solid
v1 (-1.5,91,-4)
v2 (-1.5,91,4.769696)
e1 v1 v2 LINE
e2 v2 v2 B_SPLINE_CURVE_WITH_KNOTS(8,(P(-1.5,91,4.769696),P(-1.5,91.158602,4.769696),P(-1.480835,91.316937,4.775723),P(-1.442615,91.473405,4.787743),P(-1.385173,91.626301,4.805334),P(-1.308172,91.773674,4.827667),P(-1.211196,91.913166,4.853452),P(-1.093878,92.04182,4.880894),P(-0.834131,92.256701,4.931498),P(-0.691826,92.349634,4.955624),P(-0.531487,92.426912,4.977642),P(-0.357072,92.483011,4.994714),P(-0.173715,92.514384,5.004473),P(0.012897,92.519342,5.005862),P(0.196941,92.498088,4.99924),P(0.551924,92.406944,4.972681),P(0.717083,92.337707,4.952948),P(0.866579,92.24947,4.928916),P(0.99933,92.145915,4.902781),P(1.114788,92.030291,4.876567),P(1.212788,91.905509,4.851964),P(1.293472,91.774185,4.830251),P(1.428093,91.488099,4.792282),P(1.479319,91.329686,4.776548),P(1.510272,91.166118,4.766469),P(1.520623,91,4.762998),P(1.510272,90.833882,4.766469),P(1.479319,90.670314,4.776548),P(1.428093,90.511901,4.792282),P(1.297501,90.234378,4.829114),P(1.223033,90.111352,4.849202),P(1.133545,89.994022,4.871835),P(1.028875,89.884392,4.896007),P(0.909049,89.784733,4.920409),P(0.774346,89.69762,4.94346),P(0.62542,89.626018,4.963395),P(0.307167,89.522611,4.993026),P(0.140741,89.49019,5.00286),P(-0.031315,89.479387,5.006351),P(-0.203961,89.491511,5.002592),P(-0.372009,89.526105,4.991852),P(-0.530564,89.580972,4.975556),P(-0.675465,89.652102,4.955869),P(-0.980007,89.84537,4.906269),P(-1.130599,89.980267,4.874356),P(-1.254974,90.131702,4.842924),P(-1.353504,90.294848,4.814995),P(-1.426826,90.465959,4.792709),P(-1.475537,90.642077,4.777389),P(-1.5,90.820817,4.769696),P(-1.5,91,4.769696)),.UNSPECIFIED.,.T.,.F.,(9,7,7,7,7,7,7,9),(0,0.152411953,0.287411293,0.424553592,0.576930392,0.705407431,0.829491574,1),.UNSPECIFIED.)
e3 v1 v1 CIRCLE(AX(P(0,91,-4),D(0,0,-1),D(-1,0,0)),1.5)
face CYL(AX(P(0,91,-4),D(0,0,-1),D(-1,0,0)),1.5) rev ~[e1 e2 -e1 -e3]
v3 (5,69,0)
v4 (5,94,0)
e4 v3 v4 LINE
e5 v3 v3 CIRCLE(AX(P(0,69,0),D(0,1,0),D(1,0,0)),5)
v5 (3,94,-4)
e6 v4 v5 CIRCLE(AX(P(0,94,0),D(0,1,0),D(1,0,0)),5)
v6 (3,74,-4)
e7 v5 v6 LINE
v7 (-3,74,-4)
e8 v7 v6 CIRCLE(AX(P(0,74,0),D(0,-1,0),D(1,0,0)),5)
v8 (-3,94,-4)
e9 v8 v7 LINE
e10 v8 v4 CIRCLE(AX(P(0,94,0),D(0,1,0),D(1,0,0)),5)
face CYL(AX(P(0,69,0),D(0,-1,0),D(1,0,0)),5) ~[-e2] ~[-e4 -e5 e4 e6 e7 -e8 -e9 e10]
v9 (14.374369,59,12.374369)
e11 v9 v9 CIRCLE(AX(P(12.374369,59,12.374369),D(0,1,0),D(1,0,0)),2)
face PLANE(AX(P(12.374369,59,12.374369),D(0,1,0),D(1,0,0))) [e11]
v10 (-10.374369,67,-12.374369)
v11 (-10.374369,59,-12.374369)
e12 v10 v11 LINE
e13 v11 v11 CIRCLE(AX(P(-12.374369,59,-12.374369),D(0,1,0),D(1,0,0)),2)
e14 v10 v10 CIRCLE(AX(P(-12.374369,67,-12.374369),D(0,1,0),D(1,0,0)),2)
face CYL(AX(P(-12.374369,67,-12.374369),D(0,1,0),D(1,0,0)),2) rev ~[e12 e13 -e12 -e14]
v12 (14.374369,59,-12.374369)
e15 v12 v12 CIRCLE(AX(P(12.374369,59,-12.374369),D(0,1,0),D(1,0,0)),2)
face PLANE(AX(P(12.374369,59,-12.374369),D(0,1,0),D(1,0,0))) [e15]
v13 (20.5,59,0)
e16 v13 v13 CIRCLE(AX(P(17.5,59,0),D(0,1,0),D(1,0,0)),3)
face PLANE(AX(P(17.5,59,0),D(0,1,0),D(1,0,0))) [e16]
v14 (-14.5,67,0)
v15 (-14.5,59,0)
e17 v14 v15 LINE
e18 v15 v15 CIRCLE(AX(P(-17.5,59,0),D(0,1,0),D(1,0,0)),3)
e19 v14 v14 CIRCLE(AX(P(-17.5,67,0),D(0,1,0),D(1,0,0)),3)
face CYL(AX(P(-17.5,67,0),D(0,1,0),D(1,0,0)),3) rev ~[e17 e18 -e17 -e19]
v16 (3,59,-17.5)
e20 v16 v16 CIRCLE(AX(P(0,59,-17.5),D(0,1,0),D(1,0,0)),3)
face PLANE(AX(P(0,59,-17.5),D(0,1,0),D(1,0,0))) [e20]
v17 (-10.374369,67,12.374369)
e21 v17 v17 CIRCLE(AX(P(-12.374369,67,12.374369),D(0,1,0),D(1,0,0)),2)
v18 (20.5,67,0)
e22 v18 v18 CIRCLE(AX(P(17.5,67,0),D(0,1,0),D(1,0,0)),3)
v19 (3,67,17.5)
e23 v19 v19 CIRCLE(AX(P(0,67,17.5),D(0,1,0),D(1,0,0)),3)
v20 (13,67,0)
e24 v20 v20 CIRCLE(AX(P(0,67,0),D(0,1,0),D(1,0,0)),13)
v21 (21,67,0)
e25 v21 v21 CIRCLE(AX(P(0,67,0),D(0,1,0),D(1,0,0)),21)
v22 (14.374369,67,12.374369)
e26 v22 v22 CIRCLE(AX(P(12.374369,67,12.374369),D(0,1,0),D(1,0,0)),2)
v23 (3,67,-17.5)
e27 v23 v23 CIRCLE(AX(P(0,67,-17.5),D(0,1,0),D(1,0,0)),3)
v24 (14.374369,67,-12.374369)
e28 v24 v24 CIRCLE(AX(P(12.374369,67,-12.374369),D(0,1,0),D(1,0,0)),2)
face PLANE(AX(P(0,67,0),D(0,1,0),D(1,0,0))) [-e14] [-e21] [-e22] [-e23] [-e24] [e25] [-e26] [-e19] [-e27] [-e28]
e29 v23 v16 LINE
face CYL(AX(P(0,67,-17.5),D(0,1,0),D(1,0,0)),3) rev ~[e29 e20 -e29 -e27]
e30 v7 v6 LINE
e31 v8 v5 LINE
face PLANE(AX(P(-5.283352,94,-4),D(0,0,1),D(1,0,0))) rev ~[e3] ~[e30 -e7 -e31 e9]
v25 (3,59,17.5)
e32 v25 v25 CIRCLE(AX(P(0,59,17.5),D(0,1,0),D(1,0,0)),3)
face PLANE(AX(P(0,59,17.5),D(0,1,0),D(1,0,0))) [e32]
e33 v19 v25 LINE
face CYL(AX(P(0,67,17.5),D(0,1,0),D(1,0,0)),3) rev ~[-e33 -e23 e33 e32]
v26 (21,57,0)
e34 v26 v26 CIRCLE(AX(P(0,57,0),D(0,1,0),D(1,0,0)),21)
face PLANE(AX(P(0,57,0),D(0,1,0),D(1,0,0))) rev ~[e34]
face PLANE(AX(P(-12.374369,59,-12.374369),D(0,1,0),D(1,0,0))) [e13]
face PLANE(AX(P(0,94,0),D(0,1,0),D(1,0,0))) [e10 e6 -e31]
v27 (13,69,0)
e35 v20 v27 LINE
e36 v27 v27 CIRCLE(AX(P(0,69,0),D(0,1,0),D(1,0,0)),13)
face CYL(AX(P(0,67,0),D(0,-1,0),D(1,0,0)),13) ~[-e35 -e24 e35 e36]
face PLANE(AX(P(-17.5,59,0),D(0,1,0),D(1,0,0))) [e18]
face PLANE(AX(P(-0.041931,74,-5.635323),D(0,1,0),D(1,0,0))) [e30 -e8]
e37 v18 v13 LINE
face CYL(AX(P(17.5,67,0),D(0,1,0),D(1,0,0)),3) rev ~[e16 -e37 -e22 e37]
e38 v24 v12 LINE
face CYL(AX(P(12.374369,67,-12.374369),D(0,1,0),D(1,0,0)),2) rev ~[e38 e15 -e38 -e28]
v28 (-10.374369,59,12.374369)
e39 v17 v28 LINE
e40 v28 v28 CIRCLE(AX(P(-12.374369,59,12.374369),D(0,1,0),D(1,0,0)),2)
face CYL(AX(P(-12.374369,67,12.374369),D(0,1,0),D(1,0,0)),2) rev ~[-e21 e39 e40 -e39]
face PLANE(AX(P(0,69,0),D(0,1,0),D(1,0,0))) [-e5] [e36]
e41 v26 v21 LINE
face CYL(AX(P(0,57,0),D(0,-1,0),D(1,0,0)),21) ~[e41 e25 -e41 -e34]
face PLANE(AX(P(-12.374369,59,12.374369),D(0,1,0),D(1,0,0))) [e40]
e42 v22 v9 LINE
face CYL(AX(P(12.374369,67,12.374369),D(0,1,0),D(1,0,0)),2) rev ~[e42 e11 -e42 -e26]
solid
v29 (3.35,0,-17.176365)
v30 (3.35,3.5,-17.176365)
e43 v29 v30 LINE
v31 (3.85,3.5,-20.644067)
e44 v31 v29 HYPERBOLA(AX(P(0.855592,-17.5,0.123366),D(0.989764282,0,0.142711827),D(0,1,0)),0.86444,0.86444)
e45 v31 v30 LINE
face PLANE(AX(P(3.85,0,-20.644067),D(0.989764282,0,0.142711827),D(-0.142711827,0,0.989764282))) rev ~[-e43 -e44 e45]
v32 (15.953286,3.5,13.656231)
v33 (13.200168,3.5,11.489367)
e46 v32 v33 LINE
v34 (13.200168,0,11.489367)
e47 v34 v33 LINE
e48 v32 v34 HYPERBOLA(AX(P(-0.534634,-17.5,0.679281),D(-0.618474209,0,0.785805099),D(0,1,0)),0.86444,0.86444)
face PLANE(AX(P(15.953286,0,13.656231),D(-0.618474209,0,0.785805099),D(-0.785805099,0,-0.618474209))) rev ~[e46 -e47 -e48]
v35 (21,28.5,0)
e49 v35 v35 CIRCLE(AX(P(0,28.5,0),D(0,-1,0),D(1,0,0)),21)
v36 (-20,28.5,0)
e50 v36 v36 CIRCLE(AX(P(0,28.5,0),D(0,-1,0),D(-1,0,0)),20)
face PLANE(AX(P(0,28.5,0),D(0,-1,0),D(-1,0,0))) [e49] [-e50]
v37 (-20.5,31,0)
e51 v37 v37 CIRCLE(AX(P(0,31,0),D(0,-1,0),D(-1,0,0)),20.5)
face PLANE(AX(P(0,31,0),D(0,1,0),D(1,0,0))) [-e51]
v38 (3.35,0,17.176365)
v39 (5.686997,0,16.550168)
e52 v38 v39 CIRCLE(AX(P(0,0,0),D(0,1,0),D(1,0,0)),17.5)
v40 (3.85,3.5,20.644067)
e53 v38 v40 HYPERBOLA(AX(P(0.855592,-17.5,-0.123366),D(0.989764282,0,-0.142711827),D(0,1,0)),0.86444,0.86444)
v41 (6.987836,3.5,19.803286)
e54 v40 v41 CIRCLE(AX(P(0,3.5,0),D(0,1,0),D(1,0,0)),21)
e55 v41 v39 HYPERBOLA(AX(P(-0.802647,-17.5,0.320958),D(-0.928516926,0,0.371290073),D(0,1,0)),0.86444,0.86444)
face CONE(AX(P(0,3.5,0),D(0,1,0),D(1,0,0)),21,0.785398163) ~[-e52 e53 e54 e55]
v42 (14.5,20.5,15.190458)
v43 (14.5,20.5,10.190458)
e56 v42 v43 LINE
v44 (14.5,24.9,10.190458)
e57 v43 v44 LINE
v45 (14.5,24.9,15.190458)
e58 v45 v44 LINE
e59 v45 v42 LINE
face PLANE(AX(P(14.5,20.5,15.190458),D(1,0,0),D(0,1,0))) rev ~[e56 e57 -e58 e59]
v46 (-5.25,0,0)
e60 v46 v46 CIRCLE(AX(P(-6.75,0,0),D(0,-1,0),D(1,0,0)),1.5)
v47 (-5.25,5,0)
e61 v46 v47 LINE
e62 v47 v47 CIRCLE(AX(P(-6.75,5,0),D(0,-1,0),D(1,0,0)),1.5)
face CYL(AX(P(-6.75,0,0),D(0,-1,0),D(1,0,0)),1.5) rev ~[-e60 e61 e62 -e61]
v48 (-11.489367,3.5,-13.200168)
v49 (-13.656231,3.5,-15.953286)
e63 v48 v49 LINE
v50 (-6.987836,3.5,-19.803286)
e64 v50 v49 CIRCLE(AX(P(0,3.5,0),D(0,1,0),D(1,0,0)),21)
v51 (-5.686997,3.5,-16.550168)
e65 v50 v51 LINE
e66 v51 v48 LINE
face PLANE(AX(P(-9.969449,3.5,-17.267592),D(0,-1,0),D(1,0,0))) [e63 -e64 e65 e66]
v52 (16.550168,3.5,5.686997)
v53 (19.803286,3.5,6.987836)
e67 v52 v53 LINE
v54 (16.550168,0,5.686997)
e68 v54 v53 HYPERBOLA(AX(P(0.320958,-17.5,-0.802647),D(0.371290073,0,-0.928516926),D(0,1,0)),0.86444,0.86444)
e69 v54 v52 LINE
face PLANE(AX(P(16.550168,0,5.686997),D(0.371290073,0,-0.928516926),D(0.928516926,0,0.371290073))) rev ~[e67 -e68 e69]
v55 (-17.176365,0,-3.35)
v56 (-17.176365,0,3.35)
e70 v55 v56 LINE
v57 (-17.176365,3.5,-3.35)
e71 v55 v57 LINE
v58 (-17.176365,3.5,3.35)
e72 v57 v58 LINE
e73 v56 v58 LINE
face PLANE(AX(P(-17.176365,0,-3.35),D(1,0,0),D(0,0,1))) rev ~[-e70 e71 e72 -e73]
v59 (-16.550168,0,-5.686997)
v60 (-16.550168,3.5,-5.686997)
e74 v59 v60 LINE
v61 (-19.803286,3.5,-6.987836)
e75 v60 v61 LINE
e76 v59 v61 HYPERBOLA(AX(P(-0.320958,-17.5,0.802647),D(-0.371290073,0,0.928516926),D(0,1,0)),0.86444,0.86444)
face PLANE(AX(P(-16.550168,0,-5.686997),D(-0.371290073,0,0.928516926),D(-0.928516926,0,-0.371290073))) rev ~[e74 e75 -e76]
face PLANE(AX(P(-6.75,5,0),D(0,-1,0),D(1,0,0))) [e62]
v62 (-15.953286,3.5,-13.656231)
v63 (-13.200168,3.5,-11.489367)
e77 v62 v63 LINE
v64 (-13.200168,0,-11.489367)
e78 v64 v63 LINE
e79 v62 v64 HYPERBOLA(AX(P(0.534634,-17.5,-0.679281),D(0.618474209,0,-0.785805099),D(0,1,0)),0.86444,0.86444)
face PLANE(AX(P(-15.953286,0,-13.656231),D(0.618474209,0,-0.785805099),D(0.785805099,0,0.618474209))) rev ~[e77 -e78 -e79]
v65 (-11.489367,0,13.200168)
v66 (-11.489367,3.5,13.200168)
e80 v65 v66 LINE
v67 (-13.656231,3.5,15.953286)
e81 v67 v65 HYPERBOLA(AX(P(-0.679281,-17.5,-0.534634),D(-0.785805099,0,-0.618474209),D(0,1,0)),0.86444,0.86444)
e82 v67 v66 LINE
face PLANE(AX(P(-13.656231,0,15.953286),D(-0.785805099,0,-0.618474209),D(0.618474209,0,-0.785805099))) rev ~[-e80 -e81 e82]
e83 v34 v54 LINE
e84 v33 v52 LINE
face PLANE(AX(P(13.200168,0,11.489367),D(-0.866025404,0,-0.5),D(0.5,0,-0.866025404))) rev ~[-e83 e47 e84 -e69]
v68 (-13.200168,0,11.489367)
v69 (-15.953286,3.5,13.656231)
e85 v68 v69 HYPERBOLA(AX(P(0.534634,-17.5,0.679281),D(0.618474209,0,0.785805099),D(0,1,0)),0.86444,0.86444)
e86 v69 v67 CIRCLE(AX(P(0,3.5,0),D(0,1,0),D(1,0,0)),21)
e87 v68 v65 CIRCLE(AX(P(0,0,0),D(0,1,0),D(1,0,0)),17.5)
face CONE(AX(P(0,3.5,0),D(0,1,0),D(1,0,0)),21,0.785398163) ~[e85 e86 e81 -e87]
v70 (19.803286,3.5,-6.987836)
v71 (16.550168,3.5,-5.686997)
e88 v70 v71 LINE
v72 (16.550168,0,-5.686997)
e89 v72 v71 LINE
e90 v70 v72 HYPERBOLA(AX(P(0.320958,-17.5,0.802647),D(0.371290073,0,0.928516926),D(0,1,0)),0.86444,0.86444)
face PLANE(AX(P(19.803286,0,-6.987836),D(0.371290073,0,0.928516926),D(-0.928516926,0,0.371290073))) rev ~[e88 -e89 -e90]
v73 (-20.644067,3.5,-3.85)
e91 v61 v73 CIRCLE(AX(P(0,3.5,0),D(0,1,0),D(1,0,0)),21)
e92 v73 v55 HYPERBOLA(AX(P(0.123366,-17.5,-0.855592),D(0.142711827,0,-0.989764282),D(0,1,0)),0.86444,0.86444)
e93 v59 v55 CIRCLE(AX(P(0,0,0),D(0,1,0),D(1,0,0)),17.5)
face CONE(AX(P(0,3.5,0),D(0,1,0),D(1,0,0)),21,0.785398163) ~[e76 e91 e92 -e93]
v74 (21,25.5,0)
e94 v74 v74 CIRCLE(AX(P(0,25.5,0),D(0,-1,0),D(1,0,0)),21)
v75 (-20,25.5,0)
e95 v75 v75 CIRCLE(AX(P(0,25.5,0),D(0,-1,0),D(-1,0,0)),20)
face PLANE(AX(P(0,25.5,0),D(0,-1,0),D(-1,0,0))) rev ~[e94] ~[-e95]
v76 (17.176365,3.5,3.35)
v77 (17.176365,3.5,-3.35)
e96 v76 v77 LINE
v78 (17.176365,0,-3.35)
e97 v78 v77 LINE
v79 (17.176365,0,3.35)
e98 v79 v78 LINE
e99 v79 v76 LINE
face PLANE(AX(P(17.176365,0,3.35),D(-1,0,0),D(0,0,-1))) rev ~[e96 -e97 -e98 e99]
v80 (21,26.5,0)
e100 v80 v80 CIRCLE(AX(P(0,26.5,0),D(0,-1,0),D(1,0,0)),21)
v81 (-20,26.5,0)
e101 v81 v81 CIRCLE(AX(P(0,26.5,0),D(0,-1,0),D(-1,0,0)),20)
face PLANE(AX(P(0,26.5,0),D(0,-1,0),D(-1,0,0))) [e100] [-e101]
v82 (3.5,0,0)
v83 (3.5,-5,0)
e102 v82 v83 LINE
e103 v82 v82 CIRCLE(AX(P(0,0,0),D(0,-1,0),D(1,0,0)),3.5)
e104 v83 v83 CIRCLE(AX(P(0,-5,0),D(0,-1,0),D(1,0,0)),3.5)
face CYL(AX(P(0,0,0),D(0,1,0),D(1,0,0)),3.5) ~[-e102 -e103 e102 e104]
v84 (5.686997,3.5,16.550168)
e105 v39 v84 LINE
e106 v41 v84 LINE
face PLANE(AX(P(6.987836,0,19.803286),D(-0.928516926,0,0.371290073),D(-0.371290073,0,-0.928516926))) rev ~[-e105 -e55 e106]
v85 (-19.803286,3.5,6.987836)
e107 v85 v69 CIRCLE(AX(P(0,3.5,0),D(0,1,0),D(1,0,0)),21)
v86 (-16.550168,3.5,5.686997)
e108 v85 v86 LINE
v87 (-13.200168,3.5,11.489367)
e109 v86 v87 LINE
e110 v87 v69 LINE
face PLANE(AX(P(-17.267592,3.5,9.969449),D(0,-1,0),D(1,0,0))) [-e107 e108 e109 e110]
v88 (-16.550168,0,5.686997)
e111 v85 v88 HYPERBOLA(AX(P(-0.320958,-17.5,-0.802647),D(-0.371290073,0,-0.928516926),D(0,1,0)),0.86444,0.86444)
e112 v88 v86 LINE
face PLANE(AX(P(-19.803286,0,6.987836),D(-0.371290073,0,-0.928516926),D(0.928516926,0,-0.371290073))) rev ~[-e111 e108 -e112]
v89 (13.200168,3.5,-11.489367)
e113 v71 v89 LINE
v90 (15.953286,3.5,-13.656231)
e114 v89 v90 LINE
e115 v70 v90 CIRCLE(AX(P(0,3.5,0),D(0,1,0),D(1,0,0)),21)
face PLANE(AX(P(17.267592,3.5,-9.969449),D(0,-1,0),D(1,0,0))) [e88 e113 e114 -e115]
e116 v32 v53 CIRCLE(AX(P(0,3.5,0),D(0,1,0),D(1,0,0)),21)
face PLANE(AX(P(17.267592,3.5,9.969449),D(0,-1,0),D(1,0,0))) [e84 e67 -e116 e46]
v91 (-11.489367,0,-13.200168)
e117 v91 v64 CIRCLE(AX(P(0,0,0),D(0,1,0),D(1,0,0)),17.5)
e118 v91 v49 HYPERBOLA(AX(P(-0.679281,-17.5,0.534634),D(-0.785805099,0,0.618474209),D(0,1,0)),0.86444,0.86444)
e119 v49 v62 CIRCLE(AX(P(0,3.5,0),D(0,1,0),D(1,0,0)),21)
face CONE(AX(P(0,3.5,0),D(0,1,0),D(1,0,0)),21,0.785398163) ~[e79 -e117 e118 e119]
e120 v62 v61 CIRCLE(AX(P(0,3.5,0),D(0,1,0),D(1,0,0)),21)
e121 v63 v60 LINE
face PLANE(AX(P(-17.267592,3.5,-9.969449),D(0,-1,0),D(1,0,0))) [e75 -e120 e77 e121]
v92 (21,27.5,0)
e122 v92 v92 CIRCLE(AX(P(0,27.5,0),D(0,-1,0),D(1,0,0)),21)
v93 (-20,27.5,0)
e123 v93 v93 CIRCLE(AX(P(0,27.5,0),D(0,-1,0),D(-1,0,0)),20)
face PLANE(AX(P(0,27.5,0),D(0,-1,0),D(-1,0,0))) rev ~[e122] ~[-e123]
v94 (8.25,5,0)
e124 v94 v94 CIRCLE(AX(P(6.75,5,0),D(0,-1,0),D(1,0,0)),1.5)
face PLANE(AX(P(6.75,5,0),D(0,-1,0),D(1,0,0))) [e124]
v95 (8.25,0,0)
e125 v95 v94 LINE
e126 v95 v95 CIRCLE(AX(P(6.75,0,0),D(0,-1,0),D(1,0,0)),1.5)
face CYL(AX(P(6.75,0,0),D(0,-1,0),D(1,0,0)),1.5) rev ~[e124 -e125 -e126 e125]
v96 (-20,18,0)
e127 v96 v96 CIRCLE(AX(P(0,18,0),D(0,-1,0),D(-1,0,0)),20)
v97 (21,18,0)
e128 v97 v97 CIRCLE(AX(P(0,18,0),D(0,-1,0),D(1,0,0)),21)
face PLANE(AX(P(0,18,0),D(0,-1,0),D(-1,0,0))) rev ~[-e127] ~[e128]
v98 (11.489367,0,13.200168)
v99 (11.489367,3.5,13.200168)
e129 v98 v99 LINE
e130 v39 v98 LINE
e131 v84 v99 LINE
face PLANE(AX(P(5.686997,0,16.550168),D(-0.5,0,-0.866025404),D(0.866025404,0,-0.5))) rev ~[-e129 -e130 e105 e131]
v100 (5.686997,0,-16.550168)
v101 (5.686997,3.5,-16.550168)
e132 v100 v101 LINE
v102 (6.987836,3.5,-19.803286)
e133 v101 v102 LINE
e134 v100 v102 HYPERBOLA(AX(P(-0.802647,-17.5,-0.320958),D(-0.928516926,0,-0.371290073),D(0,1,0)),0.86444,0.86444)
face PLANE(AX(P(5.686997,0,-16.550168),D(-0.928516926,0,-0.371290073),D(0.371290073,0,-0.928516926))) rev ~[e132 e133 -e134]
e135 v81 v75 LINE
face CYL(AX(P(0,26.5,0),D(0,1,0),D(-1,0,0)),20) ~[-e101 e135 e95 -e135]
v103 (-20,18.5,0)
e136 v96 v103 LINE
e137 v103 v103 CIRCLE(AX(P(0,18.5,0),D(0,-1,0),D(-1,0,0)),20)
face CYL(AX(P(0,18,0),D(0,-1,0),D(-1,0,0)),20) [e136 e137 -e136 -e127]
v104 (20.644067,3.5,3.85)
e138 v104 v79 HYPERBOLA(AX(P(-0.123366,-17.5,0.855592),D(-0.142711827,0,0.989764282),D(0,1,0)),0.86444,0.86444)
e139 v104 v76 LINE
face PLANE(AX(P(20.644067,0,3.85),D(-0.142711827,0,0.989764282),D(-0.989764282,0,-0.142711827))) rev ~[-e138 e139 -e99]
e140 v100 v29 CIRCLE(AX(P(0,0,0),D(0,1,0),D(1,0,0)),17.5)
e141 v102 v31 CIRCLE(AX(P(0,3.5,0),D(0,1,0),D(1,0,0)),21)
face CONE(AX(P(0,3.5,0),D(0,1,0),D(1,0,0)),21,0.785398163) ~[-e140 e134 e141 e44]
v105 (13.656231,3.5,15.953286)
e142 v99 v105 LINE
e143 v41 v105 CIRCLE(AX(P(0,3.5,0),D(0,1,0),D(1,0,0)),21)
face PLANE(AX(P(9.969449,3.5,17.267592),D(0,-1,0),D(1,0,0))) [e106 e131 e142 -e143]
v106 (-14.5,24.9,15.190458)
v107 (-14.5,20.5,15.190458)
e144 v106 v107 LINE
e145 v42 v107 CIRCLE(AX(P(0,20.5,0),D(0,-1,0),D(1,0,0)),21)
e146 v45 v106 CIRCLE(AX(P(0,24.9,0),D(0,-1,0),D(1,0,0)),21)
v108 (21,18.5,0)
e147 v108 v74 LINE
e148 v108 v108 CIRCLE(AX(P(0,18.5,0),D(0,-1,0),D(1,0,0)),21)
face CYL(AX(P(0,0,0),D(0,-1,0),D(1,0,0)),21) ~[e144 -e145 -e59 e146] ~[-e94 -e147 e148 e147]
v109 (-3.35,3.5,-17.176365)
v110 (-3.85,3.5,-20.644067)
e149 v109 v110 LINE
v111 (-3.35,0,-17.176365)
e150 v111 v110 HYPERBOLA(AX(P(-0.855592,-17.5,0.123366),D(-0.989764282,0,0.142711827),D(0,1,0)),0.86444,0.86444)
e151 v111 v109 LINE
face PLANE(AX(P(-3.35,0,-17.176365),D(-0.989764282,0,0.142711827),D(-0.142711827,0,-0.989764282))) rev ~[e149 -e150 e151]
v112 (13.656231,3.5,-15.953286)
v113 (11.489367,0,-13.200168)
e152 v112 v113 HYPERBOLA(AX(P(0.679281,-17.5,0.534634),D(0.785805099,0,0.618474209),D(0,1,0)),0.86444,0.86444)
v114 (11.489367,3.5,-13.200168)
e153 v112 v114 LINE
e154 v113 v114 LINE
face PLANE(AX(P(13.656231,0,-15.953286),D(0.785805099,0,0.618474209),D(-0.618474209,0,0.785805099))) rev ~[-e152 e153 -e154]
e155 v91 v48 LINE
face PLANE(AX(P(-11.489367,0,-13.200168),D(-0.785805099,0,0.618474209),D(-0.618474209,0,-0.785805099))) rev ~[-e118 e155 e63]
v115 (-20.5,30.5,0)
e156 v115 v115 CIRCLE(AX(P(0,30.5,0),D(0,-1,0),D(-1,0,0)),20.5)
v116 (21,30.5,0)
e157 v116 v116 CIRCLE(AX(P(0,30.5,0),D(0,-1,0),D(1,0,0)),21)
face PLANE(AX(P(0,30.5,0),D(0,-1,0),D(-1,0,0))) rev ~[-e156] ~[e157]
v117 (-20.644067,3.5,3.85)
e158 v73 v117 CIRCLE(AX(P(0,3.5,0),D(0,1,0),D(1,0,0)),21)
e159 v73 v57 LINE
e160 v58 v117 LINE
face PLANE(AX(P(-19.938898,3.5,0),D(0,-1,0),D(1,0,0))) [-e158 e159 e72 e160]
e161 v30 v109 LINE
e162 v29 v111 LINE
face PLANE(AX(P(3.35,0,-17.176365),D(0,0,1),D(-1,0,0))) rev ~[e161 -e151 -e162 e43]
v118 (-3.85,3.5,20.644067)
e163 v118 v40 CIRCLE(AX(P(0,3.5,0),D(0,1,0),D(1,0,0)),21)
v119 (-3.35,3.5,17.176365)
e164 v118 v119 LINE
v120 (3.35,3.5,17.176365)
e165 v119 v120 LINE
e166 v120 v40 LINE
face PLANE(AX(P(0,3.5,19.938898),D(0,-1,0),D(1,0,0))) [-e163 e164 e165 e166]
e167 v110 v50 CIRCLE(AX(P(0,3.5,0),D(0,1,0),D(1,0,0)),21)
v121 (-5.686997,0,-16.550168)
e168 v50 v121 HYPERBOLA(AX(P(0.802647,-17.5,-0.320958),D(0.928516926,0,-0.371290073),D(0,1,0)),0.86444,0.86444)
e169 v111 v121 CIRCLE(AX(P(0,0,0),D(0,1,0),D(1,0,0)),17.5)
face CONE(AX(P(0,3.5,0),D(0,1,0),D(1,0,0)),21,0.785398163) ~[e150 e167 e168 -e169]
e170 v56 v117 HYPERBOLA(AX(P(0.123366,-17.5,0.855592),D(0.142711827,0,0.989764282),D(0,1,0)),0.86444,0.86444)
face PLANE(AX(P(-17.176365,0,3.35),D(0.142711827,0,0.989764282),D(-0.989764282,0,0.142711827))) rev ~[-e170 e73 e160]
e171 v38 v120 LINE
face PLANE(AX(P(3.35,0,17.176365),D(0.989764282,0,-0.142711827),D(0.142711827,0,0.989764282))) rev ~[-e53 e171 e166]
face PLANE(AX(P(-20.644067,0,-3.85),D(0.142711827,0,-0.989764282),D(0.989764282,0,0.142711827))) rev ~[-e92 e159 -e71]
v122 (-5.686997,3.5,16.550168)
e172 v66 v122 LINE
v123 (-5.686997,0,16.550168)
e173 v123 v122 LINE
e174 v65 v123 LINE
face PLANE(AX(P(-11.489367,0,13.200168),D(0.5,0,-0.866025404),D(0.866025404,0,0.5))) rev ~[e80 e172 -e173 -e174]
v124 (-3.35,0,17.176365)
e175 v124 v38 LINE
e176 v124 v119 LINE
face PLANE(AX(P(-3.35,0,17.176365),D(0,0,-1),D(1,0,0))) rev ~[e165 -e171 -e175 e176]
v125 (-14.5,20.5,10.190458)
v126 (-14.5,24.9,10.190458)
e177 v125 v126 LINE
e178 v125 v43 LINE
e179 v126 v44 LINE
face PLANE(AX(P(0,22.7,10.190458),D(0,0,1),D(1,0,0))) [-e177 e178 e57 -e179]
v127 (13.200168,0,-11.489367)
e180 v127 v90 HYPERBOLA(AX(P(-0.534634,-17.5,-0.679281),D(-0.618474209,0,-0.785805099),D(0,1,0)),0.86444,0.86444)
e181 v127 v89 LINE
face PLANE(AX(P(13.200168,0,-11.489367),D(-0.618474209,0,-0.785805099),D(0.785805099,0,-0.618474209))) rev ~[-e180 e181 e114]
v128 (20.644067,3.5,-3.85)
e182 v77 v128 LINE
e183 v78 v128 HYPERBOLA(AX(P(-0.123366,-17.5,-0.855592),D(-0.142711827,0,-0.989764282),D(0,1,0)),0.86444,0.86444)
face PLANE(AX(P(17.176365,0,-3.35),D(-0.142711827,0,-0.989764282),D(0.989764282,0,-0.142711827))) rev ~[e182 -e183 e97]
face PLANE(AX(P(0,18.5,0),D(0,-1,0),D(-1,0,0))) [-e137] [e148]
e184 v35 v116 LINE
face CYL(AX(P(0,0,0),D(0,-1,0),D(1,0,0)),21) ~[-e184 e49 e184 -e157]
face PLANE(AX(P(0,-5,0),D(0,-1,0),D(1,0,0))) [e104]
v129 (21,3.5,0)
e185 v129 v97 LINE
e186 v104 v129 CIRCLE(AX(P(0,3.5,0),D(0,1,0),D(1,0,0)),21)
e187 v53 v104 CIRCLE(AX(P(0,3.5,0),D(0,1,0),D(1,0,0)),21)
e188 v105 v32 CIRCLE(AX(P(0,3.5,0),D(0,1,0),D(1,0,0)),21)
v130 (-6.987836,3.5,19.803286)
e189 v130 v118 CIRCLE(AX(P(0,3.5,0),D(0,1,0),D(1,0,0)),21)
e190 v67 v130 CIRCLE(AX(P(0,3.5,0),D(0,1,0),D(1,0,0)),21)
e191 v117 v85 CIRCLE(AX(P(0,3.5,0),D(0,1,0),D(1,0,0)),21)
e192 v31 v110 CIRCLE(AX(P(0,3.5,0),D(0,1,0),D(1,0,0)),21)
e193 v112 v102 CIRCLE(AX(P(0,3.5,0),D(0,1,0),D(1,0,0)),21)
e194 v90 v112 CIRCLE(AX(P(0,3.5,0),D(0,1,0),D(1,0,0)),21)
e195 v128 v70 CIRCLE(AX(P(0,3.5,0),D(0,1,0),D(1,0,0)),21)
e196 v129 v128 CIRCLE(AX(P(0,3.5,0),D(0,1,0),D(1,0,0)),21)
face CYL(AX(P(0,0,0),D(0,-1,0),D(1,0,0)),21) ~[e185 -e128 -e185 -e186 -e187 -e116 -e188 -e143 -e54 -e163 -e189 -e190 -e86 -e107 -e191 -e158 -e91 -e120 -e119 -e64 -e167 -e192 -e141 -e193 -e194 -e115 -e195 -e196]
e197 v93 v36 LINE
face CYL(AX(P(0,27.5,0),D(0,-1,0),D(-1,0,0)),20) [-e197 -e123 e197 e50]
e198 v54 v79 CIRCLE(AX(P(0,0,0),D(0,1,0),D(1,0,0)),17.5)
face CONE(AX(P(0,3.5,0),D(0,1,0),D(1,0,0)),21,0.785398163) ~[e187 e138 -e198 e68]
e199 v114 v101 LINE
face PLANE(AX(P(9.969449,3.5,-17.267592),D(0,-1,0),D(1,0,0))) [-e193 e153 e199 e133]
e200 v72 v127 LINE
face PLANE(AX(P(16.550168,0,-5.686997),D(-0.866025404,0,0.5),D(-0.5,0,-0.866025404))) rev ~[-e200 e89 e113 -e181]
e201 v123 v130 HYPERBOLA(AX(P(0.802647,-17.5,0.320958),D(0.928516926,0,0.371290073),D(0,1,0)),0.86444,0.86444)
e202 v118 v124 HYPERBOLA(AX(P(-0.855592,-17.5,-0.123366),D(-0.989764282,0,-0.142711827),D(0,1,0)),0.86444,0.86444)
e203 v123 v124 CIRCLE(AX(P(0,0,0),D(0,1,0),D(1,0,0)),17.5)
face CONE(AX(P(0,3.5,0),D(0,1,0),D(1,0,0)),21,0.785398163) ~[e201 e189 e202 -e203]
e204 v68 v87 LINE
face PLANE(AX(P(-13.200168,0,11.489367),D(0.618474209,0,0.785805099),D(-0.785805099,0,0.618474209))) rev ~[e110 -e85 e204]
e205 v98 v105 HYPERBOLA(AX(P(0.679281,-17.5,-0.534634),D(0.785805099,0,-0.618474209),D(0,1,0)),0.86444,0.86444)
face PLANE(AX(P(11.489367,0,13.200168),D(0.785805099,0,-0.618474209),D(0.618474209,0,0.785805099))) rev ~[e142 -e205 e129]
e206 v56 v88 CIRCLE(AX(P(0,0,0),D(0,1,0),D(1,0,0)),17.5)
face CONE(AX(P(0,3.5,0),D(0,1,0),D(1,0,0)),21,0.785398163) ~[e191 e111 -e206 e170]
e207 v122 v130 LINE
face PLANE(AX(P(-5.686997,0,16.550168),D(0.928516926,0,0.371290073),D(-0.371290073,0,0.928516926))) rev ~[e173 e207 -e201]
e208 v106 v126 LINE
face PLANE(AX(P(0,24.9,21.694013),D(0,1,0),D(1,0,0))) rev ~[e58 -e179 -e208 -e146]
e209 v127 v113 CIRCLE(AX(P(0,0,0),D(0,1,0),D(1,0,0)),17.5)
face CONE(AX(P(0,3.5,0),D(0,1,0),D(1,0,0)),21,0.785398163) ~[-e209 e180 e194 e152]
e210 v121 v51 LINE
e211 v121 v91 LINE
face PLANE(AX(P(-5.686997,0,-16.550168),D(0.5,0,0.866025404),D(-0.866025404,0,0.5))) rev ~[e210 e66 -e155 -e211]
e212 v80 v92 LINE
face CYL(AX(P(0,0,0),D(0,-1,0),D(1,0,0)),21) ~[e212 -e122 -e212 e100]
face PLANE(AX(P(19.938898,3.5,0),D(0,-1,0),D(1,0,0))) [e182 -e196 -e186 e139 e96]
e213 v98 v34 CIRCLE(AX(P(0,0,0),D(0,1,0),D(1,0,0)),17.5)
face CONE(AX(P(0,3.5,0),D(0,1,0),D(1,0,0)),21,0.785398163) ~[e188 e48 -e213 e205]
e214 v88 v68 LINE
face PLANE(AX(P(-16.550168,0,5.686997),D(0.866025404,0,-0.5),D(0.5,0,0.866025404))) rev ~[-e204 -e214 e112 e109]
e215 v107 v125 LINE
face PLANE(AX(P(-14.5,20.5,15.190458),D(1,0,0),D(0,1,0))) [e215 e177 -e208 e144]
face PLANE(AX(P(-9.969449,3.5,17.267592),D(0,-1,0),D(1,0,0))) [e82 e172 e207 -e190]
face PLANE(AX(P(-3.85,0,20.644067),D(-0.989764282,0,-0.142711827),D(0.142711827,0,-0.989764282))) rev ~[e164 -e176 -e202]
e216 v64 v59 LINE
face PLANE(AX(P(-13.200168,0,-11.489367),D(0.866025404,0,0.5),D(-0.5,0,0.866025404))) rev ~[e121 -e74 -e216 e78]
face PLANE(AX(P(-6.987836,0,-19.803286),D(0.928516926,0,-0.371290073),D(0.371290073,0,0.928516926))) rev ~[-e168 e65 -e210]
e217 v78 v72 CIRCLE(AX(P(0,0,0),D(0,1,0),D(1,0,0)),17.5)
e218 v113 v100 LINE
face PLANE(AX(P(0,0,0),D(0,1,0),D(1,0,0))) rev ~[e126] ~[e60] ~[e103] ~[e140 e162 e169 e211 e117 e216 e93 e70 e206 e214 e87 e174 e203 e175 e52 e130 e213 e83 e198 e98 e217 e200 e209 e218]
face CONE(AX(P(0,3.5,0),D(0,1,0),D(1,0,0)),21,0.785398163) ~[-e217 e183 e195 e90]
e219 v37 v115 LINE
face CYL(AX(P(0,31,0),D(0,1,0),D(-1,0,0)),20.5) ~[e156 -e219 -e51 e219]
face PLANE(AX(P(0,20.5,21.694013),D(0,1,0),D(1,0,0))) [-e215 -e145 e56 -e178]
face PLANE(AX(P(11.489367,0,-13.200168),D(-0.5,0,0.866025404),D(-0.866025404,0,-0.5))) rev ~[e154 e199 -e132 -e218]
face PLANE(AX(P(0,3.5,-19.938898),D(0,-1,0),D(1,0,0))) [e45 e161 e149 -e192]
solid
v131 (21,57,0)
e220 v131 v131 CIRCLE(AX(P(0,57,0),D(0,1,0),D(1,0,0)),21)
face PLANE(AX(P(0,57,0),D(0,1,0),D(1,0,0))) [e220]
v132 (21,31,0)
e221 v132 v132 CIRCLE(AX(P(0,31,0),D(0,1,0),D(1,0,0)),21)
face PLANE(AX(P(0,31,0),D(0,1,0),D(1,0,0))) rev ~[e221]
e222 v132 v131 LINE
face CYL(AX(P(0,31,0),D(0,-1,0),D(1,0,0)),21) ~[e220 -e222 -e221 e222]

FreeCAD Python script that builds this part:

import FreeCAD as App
import Part
import Sketcher
Q = App.Units.Quantity


def edges_at(feature, points):
    """Names of the edges that pass closest to the given points."""
    edges = feature.Shape.Edges
    near = lambda p: min(range(len(edges)), key=lambda i: edges[i].distToShape(Part.Vertex(*p))[0])
    return sorted({f"Edge{near(p) + 1}" for p in points})


def add_polygon(sketch, points):
    """Adds a closed chain of lines whose ends are joined by coincident constraints."""
    first, n = sketch.GeometryCount, len(points)
    for a, b in zip(points, points[1:] + points[:1]):
        sketch.addGeometry(Part.LineSegment(App.Vector(*a, 0), App.Vector(*b, 0)), False)
    for i in range(n):
        sketch.addConstraint(Sketcher.Constraint("Coincident", first + i, 2, first + (i + 1) % n, 1))

doc = App.newDocument("Part")
params = doc.addObject("Spreadsheet::Sheet", "Params")
for row, (alias, value) in enumerate([
    ("sketch1_diameter", "42 mm"),
    ("pad1_length", "31 mm"),
    ("chamfer_size", "3.5 mm"),
    ("sketch2_width", "6.7 mm"),
    ("sketch2_width2", "7.7 mm"),
    ("sketch2_length", "6.7 mm"),
    ("sketch2_length2", "7.7 mm"),
    ("pocket1_length", "3.5 mm"),
    ("sketch3_diameter", "42 mm"),
    ("sketch3_diameter2", "41 mm"),
    ("pocket2_length", "0.5 mm"),
    ("sketch4_diameter", "42 mm"),
    ("sketch4_diameter2", "40 mm"),
    ("pocket3_length", "1 mm"),
    ("sketch5_diameter", "42 mm"),
    ("sketch5_diameter2", "40 mm"),
    ("pocket4_length", "1 mm"),
    ("sketch6_diameter", "42 mm"),
    ("sketch6_diameter2", "40 mm"),
    ("pocket5_length", "0.5 mm"),
    ("sketch7_width", "29 mm"),
    ("pocket6_length", "4.4 mm"),
    ("sketch8_width", "29 mm"),
    ("sketch8_height", "4.4 mm"),
    ("pocket7_length", "5 mm"),
    ("sketch9_diameter", "7 mm"),
    ("pad2_length", "5 mm"),
    ("sketch10_diameter", "3 mm"),
    ("pocket8_length", "5 mm"),
    ("sketch11_diameter", "42 mm"),
    ("pad3_length", "26 mm"),
    ("sketch12_diameter", "42 mm"),
    ("pad4_length", "10 mm"),
    ("sketch13_diameter", "26 mm"),
    ("pad5_length", "2 mm"),
    ("sketch14_diameter", "10 mm"),
    ("pad6_length", "25 mm"),
    ("pocket9_length", "20 mm"),
    ("sketch16_diameter", "6 mm"),
    ("sketch16_diameter2", "4 mm"),
    ("pocket10_length", "8 mm"),
    ("sketch17_diameter", "3 mm"),
    ("pocket11_length", "10 mm"),
], start=1):
    params.set(f"A{row}", alias)
    params.set(f"B{row}", "=" + value)
    params.setAlias(f"B{row}", alias)

body = doc.addObject("PartDesign::Body", "Body")

sketch1 = body.newObject("Sketcher::SketchObject", "Sketch")
sketch1.AttachmentSupport = (doc.getObject("XZ_Plane"), [""])
sketch1.MapMode = "FlatFace"
sketch1.addGeometry(Part.Circle(App.Vector(0, 0, 0), App.Vector(0, 0, 1), 21), False)
sketch1.addConstraint([
    Sketcher.Constraint("Coincident", 0, 3, -1, 1),
    Sketcher.Constraint("Diameter", 0, 42.0),
])
sketch1.setExpression("Constraints[1]", "Params.sketch1_diameter")
pad1 = body.newObject("PartDesign::Pad", "Pad")
pad1.Profile = sketch1
pad1.setExpression("Length", "Params.pad1_length")
pad1.Reversed = True
doc.recompute()

chamfer = body.newObject("PartDesign::Chamfer", "Chamfer")
chamfer.Base = (pad1, edges_at(pad1, [(-21, 0, 0)]))
chamfer.setExpression("Size", "Params.chamfer_size")

sketch2 = body.newObject("Sketcher::SketchObject", "Sketch001")
sketch2.AttachmentSupport = (doc.getObject("XZ_Plane"), [""])
sketch2.MapMode = "FlatFace"
add_polygon(sketch2, [(3.35, -17.176365), (-3.35, -17.176365), (-3.85, -20.644067), (-3.85, -22.494899), (3.85, -22.494899), (3.85, -20.644067)])
add_polygon(sketch2, [(-6.987836, -19.803286), (-5.686997, -16.550168), (-11.489367, -13.200168), (-13.656231, -15.953286), (-14.581647, -17.556154), (-7.913252, -21.406154)])
add_polygon(sketch2, [(-15.953286, -13.656231), (-13.200168, -11.489367), (-16.550168, -5.686997), (-19.803286, -6.987836), (-21.406154, -7.913252), (-17.556154, -14.581647)])
add_polygon(sketch2, [(-20.644067, -3.85), (-17.176365, -3.35), (-17.176365, 3.35), (-20.644067, 3.85), (-22.494899, 3.85), (-22.494899, -3.85)])
add_polygon(sketch2, [(-19.803286, 6.987836), (-16.550168, 5.686997), (-13.200168, 11.489367), (-15.953286, 13.656231), (-17.556154, 14.581647), (-21.406154, 7.913252)])
add_polygon(sketch2, [(-13.656231, 15.953286), (-11.489367, 13.200168), (-5.686997, 16.550168), (-6.987836, 19.803286), (-7.913252, 21.406154), (-14.581647, 17.556154)])
add_polygon(sketch2, [(-3.85, 20.644067), (-3.35, 17.176365), (3.35, 17.176365), (3.85, 20.644067), (3.85, 22.494899), (-3.85, 22.494899)])
add_polygon(sketch2, [(6.987836, 19.803286), (5.686997, 16.550168), (11.489367, 13.200168), (13.656231, 15.953286), (14.581647, 17.556154), (7.913252, 21.406154)])
add_polygon(sketch2, [(15.953286, 13.656231), (13.200168, 11.489367), (16.550168, 5.686997), (19.803286, 6.987836), (21.406154, 7.913252), (17.556154, 14.581647)])
add_polygon(sketch2, [(20.644067, 3.85), (17.176365, 3.35), (17.176365, -3.35), (20.644067, -3.85), (22.494899, -3.85), (22.494899, 3.85)])
add_polygon(sketch2, [(19.803286, -6.987836), (16.550168, -5.686997), (13.200168, -11.489367), (15.953286, -13.656231), (17.556154, -14.581647), (21.406154, -7.913252)])
add_polygon(sketch2, [(13.656231, -15.953286), (11.489367, -13.200168), (5.686997, -16.550168), (6.987836, -19.803286), (7.913252, -21.406154), (14.581647, -17.556154)])
sketch2.addConstraint([
    Sketcher.Constraint("Horizontal", 0),
    Sketcher.Constraint("Vertical", 2),
    Sketcher.Constraint("Horizontal", 3),
    Sketcher.Constraint("Vertical", 4),
    Sketcher.Constraint("Vertical", 19),
    Sketcher.Constraint("Horizontal", 21),
    Sketcher.Constraint("Vertical", 22),
    Sketcher.Constraint("Horizontal", 23),
    Sketcher.Constraint("Horizontal", 37),
    Sketcher.Constraint("Vertical", 39),
    Sketcher.Constraint("Horizontal", 40),
    Sketcher.Constraint("Vertical", 41),
    Sketcher.Constraint("Vertical", 55),
    Sketcher.Constraint("Horizontal", 57),
    Sketcher.Constraint("Vertical", 58),
    Sketcher.Constraint("Horizontal", 59),
    Sketcher.Constraint("Symmetric", 5, 2, 36, 2, -1, 1),
    Sketcher.Constraint("Symmetric", 1, 2, 38, 2, -1, 1),
    Sketcher.Constraint("Symmetric", 3, 2, 40, 2, -1, 1),
    Sketcher.Constraint("Symmetric", 6, 2, 42, 2, -1, 1),
    Sketcher.Constraint("Symmetric", 7, 2, 43, 2, -1, 1),
    Sketcher.Constraint("Symmetric", 8, 2, 44, 2, -1, 1),
    Sketcher.Constraint("Symmetric", 9, 2, 45, 2, -1, 1),
    Sketcher.Constraint("Symmetric", 10, 2, 46, 2, -1, 1),
    Sketcher.Constraint("Symmetric", 11, 2, 47, 2, -1, 1),
    Sketcher.Constraint("Symmetric", 12, 2, 48, 2, -1, 1),
    Sketcher.Constraint("Symmetric", 13, 2, 49, 2, -1, 1),
    Sketcher.Constraint("Symmetric", 14, 2, 50, 2, -1, 1),
    Sketcher.Constraint("Symmetric", 15, 2, 51, 2, -1, 1),
    Sketcher.Constraint("Symmetric", 16, 2, 52, 2, -1, 1),
    Sketcher.Constraint("Symmetric", 17, 2, 53, 2, -1, 1),
    Sketcher.Constraint("Symmetric", 18, 2, 54, 2, -1, 1),
    Sketcher.Constraint("Symmetric", 20, 2, 56, 2, -1, 1),
    Sketcher.Constraint("Symmetric", 22, 2, 58, 2, -1, 1),
    Sketcher.Constraint("Symmetric", 24, 2, 60, 2, -1, 1),
    Sketcher.Constraint("Symmetric", 25, 2, 61, 2, -1, 1),
    Sketcher.Constraint("Symmetric", 26, 2, 62, 2, -1, 1),
    Sketcher.Constraint("Symmetric", 27, 2, 63, 2, -1, 1),
    Sketcher.Constraint("Symmetric", 28, 2, 64, 2, -1, 1),
    Sketcher.Constraint("Symmetric", 29, 2, 65, 2, -1, 1),
    Sketcher.Constraint("Symmetric", 30, 2, 66, 2, -1, 1),
    Sketcher.Constraint("Symmetric", 31, 2, 67, 2, -1, 1),
    Sketcher.Constraint("Symmetric", 32, 2, 68, 2, -1, 1),
    Sketcher.Constraint("Symmetric", 33, 2, 69, 2, -1, 1),
    Sketcher.Constraint("Symmetric", 34, 2, 70, 2, -1, 1),
    Sketcher.Constraint("Symmetric", 35, 2, 71, 2, -1, 1),
    Sketcher.Constraint("Symmetric", 1, 2, 4, 2, -2),
    Sketcher.Constraint("Symmetric", 31, 2, 42, 2, -2),
    Sketcher.Constraint("Symmetric", 30, 2, 43, 2, -2),
    Sketcher.Constraint("Symmetric", 35, 2, 44, 2, -2),
    Sketcher.Constraint("Symmetric", 34, 2, 45, 2, -2),
    Sketcher.Constraint("Symmetric", 33, 2, 46, 2, -2),
    Sketcher.Constraint("Symmetric", 32, 2, 47, 2, -2),
    Sketcher.Constraint("Symmetric", 25, 2, 48, 2, -2),
    Sketcher.Constraint("Symmetric", 24, 2, 49, 2, -2),
    Sketcher.Constraint("Symmetric", 29, 2, 50, 2, -2),
    Sketcher.Constraint("Symmetric", 28, 2, 51, 2, -2),
    Sketcher.Constraint("Symmetric", 27, 2, 52, 2, -2),
    Sketcher.Constraint("Symmetric", 26, 2, 53, 2, -2),
    Sketcher.Constraint("Symmetric", 23, 2, 56, 2, -2),
    Sketcher.Constraint("Perpendicular", 7, 9),
    Sketcher.Constraint("Perpendicular", 9, 10),
    Sketcher.Constraint("Perpendicular", 10, 11),
    Sketcher.Constraint("Perpendicular", 13, 15),
    Sketcher.Constraint("Perpendicular", 15, 16),
    Sketcher.Constraint("Perpendicular", 16, 17),
    Sketcher.Constraint("Perpendicular", 5, 18),
    Sketcher.Constraint("Perpendicular", 1, 20),
    Sketcher.Constraint("Perpendicular", 6, 24),
    Sketcher.Constraint("Parallel", 11, 25),
    Sketcher.Constraint("Perpendicular", 8, 26),
    Sketcher.Constraint("Perpendicular", 18, 36),
    Sketcher.Constraint("Perpendicular", 20, 38),
    Sketcher.Constraint("Perpendicular", 36, 54),
    Sketcher.Constraint("Perpendicular", 38, 56),
    Sketcher.Constraint("Horizontal", 19, 2, 54, 2),
    Sketcher.Constraint("Equal", 59, 2),
    Sketcher.Constraint("Equal", 37, 19),
    Sketcher.Constraint("Equal", 40, 22),
    Sketcher.Constraint("Equal", 5, 6),
    Sketcher.Constraint("Equal", 6, 8),
    Sketcher.Constraint("Equal", 9, 11),
    Sketcher.Constraint("Equal", 8, 12),
    Sketcher.Constraint("Equal", 7, 13),
    Sketcher.Constraint("Equal", 12, 14),
    Sketcher.Constraint("Equal", 11, 15),
    Sketcher.Constraint("Angle", 7, Q("150 deg")),
    Sketcher.Constraint("DistanceX", 0, 2, 0, 1, 6.7),
    Sketcher.Constraint("DistanceX", 3, 1, 3, 2, 7.7),
    Sketcher.Constraint("Distance", 7, 6.7),
    Sketcher.Constraint("Distance", 10, 7.7),
    Sketcher.Constraint("DistanceY", 2, 2, -1, 1, 22.494899),
    Sketcher.Constraint("DistanceX", 21, 2, -1, 1, 22.494899),
    Sketcher.Constraint("DistanceX", 21, 2, 21, 1, 1.850832),
    Sketcher.Constraint("DistanceY", 6, 2, -1, 1, 16.550168),
    Sketcher.Constraint("DistanceX", 8, 2, -1, 1, 13.656231),
    Sketcher.Constraint("DistanceX", 10, 2, -1, 1, 7.913252),
    Sketcher.Constraint("DistanceX", 12, 2, -1, 1, 13.200168),
    Sketcher.Constraint("DistanceY", 15, 2, -1, 1, 7.913252),
    Sketcher.Constraint("Distance", 1, 3.503564),
])
sketch2.setExpression("Constraints[159]", "Params.sketch2_width")
sketch2.setExpression("Constraints[160]", "Params.sketch2_width2")
sketch2.setExpression("Constraints[161]", "Params.sketch2_length")
sketch2.setExpression("Constraints[162]", "Params.sketch2_length2")
pocket1 = body.newObject("PartDesign::Pocket", "Pocket")
pocket1.Profile = sketch2
pocket1.setExpression("Length", "Params.pocket1_length")

sketch3 = body.newObject("Sketcher::SketchObject", "Sketch002")
sketch3.AttachmentSupport = (doc.getObject("XZ_Plane"), [""])
sketch3.MapMode = "FlatFace"
sketch3.AttachmentOffset = App.Placement(App.Vector(0, 0, -31), App.Rotation())
sketch3.addGeometry([
    Part.Circle(App.Vector(0, 0, 0), App.Vector(0, 0, 1), 21),
    Part.Circle(App.Vector(0, 0, 0), App.Vector(0, 0, 1), 20.5),
], False)
sketch3.addConstraint([
    Sketcher.Constraint("Coincident", 0, 3, -1, 1),
    Sketcher.Constraint("Coincident", 1, 3, -1, 1),
    Sketcher.Constraint("Diameter", 0, 42.0),
    Sketcher.Constraint("Diameter", 1, 41.0),
])
sketch3.setExpression("Constraints[2]", "Params.sketch3_diameter")
sketch3.setExpression("Constraints[3]", "Params.sketch3_diameter2")
pocket2 = body.newObject("PartDesign::Pocket", "Pocket001")
pocket2.Profile = sketch3
pocket2.setExpression("Length", "Params.pocket2_length")
pocket2.Reversed = True

sketch4 = body.newObject("Sketcher::SketchObject", "Sketch003")
sketch4.AttachmentSupport = (doc.getObject("XZ_Plane"), [""])
sketch4.MapMode = "FlatFace"
sketch4.AttachmentOffset = App.Placement(App.Vector(0, 0, -26.5), App.Rotation())
sketch4.addGeometry([
    Part.Circle(App.Vector(0, 0, 0), App.Vector(0, 0, 1), 21),
    Part.Circle(App.Vector(0, 0, 0), App.Vector(0, 0, 1), 20),
], False)
sketch4.addConstraint([
    Sketcher.Constraint("Coincident", 0, 3, -1, 1),
    Sketcher.Constraint("Coincident", 1, 3, -1, 1),
    Sketcher.Constraint("Diameter", 0, 42.0),
    Sketcher.Constraint("Diameter", 1, 40.0),
])
sketch4.setExpression("Constraints[2]", "Params.sketch4_diameter")
sketch4.setExpression("Constraints[3]", "Params.sketch4_diameter2")
pocket3 = body.newObject("PartDesign::Pocket", "Pocket002")
pocket3.Profile = sketch4
pocket3.setExpression("Length", "Params.pocket3_length")
pocket3.Reversed = True

sketch5 = body.newObject("Sketcher::SketchObject", "Sketch004")
sketch5.AttachmentSupport = (doc.getObject("XZ_Plane"), [""])
sketch5.MapMode = "FlatFace"
sketch5.AttachmentOffset = App.Placement(App.Vector(0, 0, -27.5), App.Rotation())
sketch5.addGeometry([
    Part.Circle(App.Vector(0, 0, 0), App.Vector(0, 0, 1), 21),
    Part.Circle(App.Vector(0, 0, 0), App.Vector(0, 0, 1), 20),
], False)
sketch5.addConstraint([
    Sketcher.Constraint("Coincident", 0, 3, -1, 1),
    Sketcher.Constraint("Coincident", 1, 3, -1, 1),
    Sketcher.Constraint("Diameter", 0, 42.0),
    Sketcher.Constraint("Diameter", 1, 40.0),
])
sketch5.setExpression("Constraints[2]", "Params.sketch5_diameter")
sketch5.setExpression("Constraints[3]", "Params.sketch5_diameter2")
pocket4 = body.newObject("PartDesign::Pocket", "Pocket003")
pocket4.Profile = sketch5
pocket4.setExpression("Length", "Params.pocket4_length")

sketch6 = body.newObject("Sketcher::SketchObject", "Sketch005")
sketch6.AttachmentSupport = (doc.getObject("XZ_Plane"), [""])
sketch6.MapMode = "FlatFace"
sketch6.AttachmentOffset = App.Placement(App.Vector(0, 0, -18), App.Rotation())
sketch6.addGeometry([
    Part.Circle(App.Vector(0, 0, 0), App.Vector(0, 0, 1), 21),
    Part.Circle(App.Vector(0, 0, 0), App.Vector(0, 0, 1), 20),
], False)
sketch6.addConstraint([
    Sketcher.Constraint("Coincident", 0, 3, -1, 1),
    Sketcher.Constraint("Coincident", 1, 3, -1, 1),
    Sketcher.Constraint("Diameter", 0, 42.0),
    Sketcher.Constraint("Diameter", 1, 40.0),
])
sketch6.setExpression("Constraints[2]", "Params.sketch6_diameter")
sketch6.setExpression("Constraints[3]", "Params.sketch6_diameter2")
pocket5 = body.newObject("PartDesign::Pocket", "Pocket004")
pocket5.Profile = sketch6
pocket5.setExpression("Length", "Params.pocket5_length")

sketch7 = body.newObject("Sketcher::SketchObject", "Sketch006")
sketch7.AttachmentSupport = (doc.getObject("XZ_Plane"), [""])
sketch7.MapMode = "FlatFace"
sketch7.AttachmentOffset = App.Placement(App.Vector(0, 0, -24.9), App.Rotation())
add_polygon(sketch7, [(-14.5, 15.190458), (-14.5, 28.197568), (14.5, 28.197568), (14.5, 15.190458)])
sketch7.addConstraint([
    Sketcher.Constraint("Vertical", 0),
    Sketcher.Constraint("Horizontal", 1),
    Sketcher.Constraint("Vertical", 2),
    Sketcher.Constraint("Horizontal", 3),
    Sketcher.Constraint("DistanceX", 1, 1, 1, 2, 29.0),
    Sketcher.Constraint("DistanceX", 0, 2, -1, 1, 14.5),
    Sketcher.Constraint("DistanceY", 0, 1, 0, 2, 13.007111),
    Sketcher.Constraint("DistanceY", -1, 1, 0, 2, 28.197568),
])
sketch7.setExpression("Constraints[8]", "Params.sketch7_width")
pocket6 = body.newObject("PartDesign::Pocket", "Pocket005")
pocket6.Profile = sketch7
pocket6.setExpression("Length", "Params.pocket6_length")
pocket6.Reversed = True

sketch8 = body.newObject("Sketcher::SketchObject", "Sketch007")
sketch8.AttachmentSupport = (doc.getObject("XY_Plane"), [""])
sketch8.MapMode = "FlatFace"
sketch8.AttachmentOffset = App.Placement(App.Vector(0, 0, 15.190458), App.Rotation())
add_polygon(sketch8, [(-14.5, 24.9), (-14.5, 20.5), (14.5, 20.5), (14.5, 24.9)])
sketch8.addConstraint([
    Sketcher.Constraint("Vertical", 0),
    Sketcher.Constraint("Horizontal", 1),
    Sketcher.Constraint("Vertical", 2),
    Sketcher.Constraint("Horizontal", 3),
    Sketcher.Constraint("DistanceX", 1, 1, 1, 2, 29.0),
    Sketcher.Constraint("DistanceY", 0, 2, 0, 1, 4.4),
    Sketcher.Constraint("DistanceX", 0, 2, -1, 1, 14.5),
    Sketcher.Constraint("DistanceY", -1, 1, 0, 2, 20.5),
])
sketch8.setExpression("Constraints[8]", "Params.sketch8_width")
sketch8.setExpression("Constraints[9]", "Params.sketch8_height")
pocket7 = body.newObject("PartDesign::Pocket", "Pocket006")
pocket7.Profile = sketch8
pocket7.setExpression("Length", "Params.pocket7_length")

sketch9 = body.newObject("Sketcher::SketchObject", "Sketch008")
sketch9.AttachmentSupport = (doc.getObject("XZ_Plane"), [""])
sketch9.MapMode = "FlatFace"
sketch9.addGeometry(Part.Circle(App.Vector(0, 0, 0), App.Vector(0, 0, 1), 3.5), False)
sketch9.addConstraint([
    Sketcher.Constraint("Coincident", 0, 3, -1, 1),
    Sketcher.Constraint("Diameter", 0, 7.0),
])
sketch9.setExpression("Constraints[1]", "Params.sketch9_diameter")
pad2 = body.newObject("PartDesign::Pad", "Pad001")
pad2.Profile = sketch9
pad2.setExpression("Length", "Params.pad2_length")

sketch10 = body.newObject("Sketcher::SketchObject", "Sketch009")
sketch10.AttachmentSupport = (doc.getObject("XZ_Plane"), [""])
sketch10.MapMode = "FlatFace"
sketch10.addGeometry([
    Part.Circle(App.Vector(-6.75, 0, 0), App.Vector(0, 0, 1), 1.5),
    Part.Circle(App.Vector(6.75, 0, 0), App.Vector(0, 0, 1), 1.5),
], False)
sketch10.addConstraint([
    Sketcher.Constraint("Equal", 0, 1),
    Sketcher.Constraint("Symmetric", 0, 3, 1, 3, -1, 1),
    Sketcher.Constraint("PointOnObject", 0, 3, -1),
    Sketcher.Constraint("Diameter", 0, 3.0),
    Sketcher.Constraint("DistanceX", 0, 3, 1, 3, 13.5),
])
sketch10.setExpression("Constraints[3]", "Params.sketch10_diameter")
pocket8 = body.newObject("PartDesign::Pocket", "Pocket007")
pocket8.Profile = sketch10
pocket8.setExpression("Length", "Params.pocket8_length")
body2 = doc.addObject("PartDesign::Body", "Body001")

sketch11 = body2.newObject("Sketcher::SketchObject", "Sketch010")
sketch11.AttachmentSupport = (doc.getObject("XZ_Plane001"), [""])
sketch11.MapMode = "FlatFace"
sketch11.AttachmentOffset = App.Placement(App.Vector(0, 0, -31), App.Rotation())
sketch11.addGeometry(Part.Circle(App.Vector(0, 0, 0), App.Vector(0, 0, 1), 21), False)
sketch11.addConstraint([
    Sketcher.Constraint("Coincident", 0, 3, -1, 1),
    Sketcher.Constraint("Diameter", 0, 42.0),
])
sketch11.setExpression("Constraints[1]", "Params.sketch11_diameter")
pad3 = body2.newObject("PartDesign::Pad", "Pad002")
pad3.Profile = sketch11
pad3.setExpression("Length", "Params.pad3_length")
pad3.Reversed = True
body3 = doc.addObject("PartDesign::Body", "Body002")

sketch12 = body3.newObject("Sketcher::SketchObject", "Sketch011")
sketch12.AttachmentSupport = (doc.getObject("XZ_Plane002"), [""])
sketch12.MapMode = "FlatFace"
sketch12.AttachmentOffset = App.Placement(App.Vector(0, 0, -57), App.Rotation())
sketch12.addGeometry(Part.Circle(App.Vector(0, 0, 0), App.Vector(0, 0, 1), 21), False)
sketch12.addConstraint([
    Sketcher.Constraint("Coincident", 0, 3, -1, 1),
    Sketcher.Constraint("Diameter", 0, 42.0),
])
sketch12.setExpression("Constraints[1]", "Params.sketch12_diameter")
pad4 = body3.newObject("PartDesign::Pad", "Pad003")
pad4.Profile = sketch12
pad4.setExpression("Length", "Params.pad4_length")
pad4.Reversed = True

sketch13 = body3.newObject("Sketcher::SketchObject", "Sketch012")
sketch13.AttachmentSupport = (doc.getObject("XZ_Plane002"), [""])
sketch13.MapMode = "FlatFace"
sketch13.AttachmentOffset = App.Placement(App.Vector(0, 0, -67), App.Rotation())
sketch13.addGeometry(Part.Circle(App.Vector(0, 0, 0), App.Vector(0, 0, 1), 13), False)
sketch13.addConstraint([
    Sketcher.Constraint("Coincident", 0, 3, -1, 1),
    Sketcher.Constraint("Diameter", 0, 26.0),
])
sketch13.setExpression("Constraints[1]", "Params.sketch13_diameter")
pad5 = body3.newObject("PartDesign::Pad", "Pad004")
pad5.Profile = sketch13
pad5.setExpression("Length", "Params.pad5_length")
pad5.Reversed = True

sketch14 = body3.newObject("Sketcher::SketchObject", "Sketch013")
sketch14.AttachmentSupport = (doc.getObject("XZ_Plane002"), [""])
sketch14.MapMode = "FlatFace"
sketch14.AttachmentOffset = App.Placement(App.Vector(0, 0, -69), App.Rotation())
sketch14.addGeometry(Part.Circle(App.Vector(0, 0, 0), App.Vector(0, 0, 1), 5), False)
sketch14.addConstraint([
    Sketcher.Constraint("Coincident", 0, 3, -1, 1),
    Sketcher.Constraint("Diameter", 0, 10.0),
])
sketch14.setExpression("Constraints[1]", "Params.sketch14_diameter")
pad6 = body3.newObject("PartDesign::Pad", "Pad005")
pad6.Profile = sketch14
pad6.setExpression("Length", "Params.pad6_length")
pad6.Reversed = True

sketch15 = body3.newObject("Sketcher::SketchObject", "Sketch014")
sketch15.AttachmentSupport = (doc.getObject("XZ_Plane002"), [""])
sketch15.MapMode = "FlatFace"
sketch15.AttachmentOffset = App.Placement(App.Vector(0, 0, -94), App.Rotation())
add_polygon(sketch15, [(-5.283352, -7.270647), (-5.283352, -4), (5.19949, -4), (5.19949, -7.270647)])
sketch15.addConstraint([
    Sketcher.Constraint("Vertical", 0),
    Sketcher.Constraint("Horizontal", 1),
    Sketcher.Constraint("Vertical", 2),
    Sketcher.Constraint("Horizontal", 3),
    Sketcher.Constraint("DistanceY", 0, 2, -1, 1, 4.0),
    Sketcher.Constraint("DistanceX", 1, 1, 1, 2, 10.482842),
    Sketcher.Constraint("DistanceY", 0, 1, 0, 2, 3.270647),
    Sketcher.Constraint("DistanceX", -1, 1, 1, 2, 5.19949),
])
pocket9 = body3.newObject("PartDesign::Pocket", "Pocket008")
pocket9.Profile = sketch15
pocket9.setExpression("Length", "Params.pocket9_length")
pocket9.Reversed = True

sketch16 = body3.newObject("Sketcher::SketchObject", "Sketch015")
sketch16.AttachmentSupport = (doc.getObject("XZ_Plane002"), [""])
sketch16.MapMode = "FlatFace"
sketch16.AttachmentOffset = App.Placement(App.Vector(0, 0, -67), App.Rotation())
sketch16.addGeometry([
    Part.Circle(App.Vector(0, -17.5, 0), App.Vector(0, 0, 1), 3),
    Part.Circle(App.Vector(-17.5, 0, 0), App.Vector(0, 0, 1), 3),
    Part.Circle(App.Vector(0, 17.5, 0), App.Vector(0, 0, 1), 3),
    Part.Circle(App.Vector(17.5, 0, 0), App.Vector(0, 0, 1), 3),
    Part.Circle(App.Vector(12.374369, -12.374369, 0), App.Vector(0, 0, 1), 2),
    Part.Circle(App.Vector(12.374369, 12.374369, 0), App.Vector(0, 0, 1), 2),
    Part.Circle(App.Vector(-12.374369, 12.374369, 0), App.Vector(0, 0, 1), 2),
    Part.Circle(App.Vector(-12.374369, -12.374369, 0), App.Vector(0, 0, 1), 2),
], False)
sketch16.addConstraint([
    Sketcher.Constraint("Equal", 0, 1),
    Sketcher.Constraint("Equal", 1, 2),
    Sketcher.Constraint("Equal", 2, 3),
    Sketcher.Constraint("Equal", 4, 5),
    Sketcher.Constraint("Equal", 5, 6),
    Sketcher.Constraint("Equal", 6, 7),
    Sketcher.Constraint("Symmetric", 0, 3, 2, 3, -1, 1),
    Sketcher.Constraint("Symmetric", 1, 3, 3, 3, -1, 1),
    Sketcher.Constraint("Symmetric", 4, 3, 6, 3, -1, 1),
    Sketcher.Constraint("Symmetric", 5, 3, 7, 3, -1, 1),
    Sketcher.Constraint("Symmetric", 5, 3, 6, 3, -2),
    Sketcher.Constraint("PointOnObject", 0, 3, -2),
    Sketcher.Constraint("PointOnObject", 1, 3, -1),
    Sketcher.Constraint("Diameter", 0, 6.0),
    Sketcher.Constraint("Diameter", 4, 4.0),
    Sketcher.Constraint("DistanceY", 0, 3, 2, 3, 35.0),
    Sketcher.Constraint("DistanceX", 1, 3, 3, 3, 35.0),
    Sketcher.Constraint("DistanceX", -1, 1, 4, 3, 12.374369),
    Sketcher.Constraint("DistanceY", 4, 3, -1, 1, 12.374369),
])
sketch16.setExpression("Constraints[13]", "Params.sketch16_diameter")
sketch16.setExpression("Constraints[14]", "Params.sketch16_diameter2")
pocket10 = body3.newObject("PartDesign::Pocket", "Pocket009")
pocket10.Profile = sketch16
pocket10.setExpression("Length", "Params.pocket10_length")
pocket10.Reversed = True

sketch17 = body3.newObject("Sketcher::SketchObject", "Sketch016")
sketch17.AttachmentSupport = (doc.getObject("XY_Plane002"), [""])
sketch17.MapMode = "FlatFace"
sketch17.AttachmentOffset = App.Placement(App.Vector(0, 0, -4), App.Rotation())
sketch17.addGeometry(Part.Circle(App.Vector(0, 91, 0), App.Vector(0, 0, 1), 1.5), False)
sketch17.addConstraint([
    Sketcher.Constraint("PointOnObject", 0, 3, -2),
    Sketcher.Constraint("Diameter", 0, 3.0),
    Sketcher.Constraint("DistanceY", -1, 1, 0, 3, 91.0),
])
sketch17.setExpression("Constraints[1]", "Params.sketch17_diameter")
pocket11 = body3.newObject("PartDesign::Pocket", "Pocket010")
pocket11.Profile = sketch17
pocket11.setExpression("Length", "Params.pocket11_length")
pocket11.Reversed = True

doc.recompute()
